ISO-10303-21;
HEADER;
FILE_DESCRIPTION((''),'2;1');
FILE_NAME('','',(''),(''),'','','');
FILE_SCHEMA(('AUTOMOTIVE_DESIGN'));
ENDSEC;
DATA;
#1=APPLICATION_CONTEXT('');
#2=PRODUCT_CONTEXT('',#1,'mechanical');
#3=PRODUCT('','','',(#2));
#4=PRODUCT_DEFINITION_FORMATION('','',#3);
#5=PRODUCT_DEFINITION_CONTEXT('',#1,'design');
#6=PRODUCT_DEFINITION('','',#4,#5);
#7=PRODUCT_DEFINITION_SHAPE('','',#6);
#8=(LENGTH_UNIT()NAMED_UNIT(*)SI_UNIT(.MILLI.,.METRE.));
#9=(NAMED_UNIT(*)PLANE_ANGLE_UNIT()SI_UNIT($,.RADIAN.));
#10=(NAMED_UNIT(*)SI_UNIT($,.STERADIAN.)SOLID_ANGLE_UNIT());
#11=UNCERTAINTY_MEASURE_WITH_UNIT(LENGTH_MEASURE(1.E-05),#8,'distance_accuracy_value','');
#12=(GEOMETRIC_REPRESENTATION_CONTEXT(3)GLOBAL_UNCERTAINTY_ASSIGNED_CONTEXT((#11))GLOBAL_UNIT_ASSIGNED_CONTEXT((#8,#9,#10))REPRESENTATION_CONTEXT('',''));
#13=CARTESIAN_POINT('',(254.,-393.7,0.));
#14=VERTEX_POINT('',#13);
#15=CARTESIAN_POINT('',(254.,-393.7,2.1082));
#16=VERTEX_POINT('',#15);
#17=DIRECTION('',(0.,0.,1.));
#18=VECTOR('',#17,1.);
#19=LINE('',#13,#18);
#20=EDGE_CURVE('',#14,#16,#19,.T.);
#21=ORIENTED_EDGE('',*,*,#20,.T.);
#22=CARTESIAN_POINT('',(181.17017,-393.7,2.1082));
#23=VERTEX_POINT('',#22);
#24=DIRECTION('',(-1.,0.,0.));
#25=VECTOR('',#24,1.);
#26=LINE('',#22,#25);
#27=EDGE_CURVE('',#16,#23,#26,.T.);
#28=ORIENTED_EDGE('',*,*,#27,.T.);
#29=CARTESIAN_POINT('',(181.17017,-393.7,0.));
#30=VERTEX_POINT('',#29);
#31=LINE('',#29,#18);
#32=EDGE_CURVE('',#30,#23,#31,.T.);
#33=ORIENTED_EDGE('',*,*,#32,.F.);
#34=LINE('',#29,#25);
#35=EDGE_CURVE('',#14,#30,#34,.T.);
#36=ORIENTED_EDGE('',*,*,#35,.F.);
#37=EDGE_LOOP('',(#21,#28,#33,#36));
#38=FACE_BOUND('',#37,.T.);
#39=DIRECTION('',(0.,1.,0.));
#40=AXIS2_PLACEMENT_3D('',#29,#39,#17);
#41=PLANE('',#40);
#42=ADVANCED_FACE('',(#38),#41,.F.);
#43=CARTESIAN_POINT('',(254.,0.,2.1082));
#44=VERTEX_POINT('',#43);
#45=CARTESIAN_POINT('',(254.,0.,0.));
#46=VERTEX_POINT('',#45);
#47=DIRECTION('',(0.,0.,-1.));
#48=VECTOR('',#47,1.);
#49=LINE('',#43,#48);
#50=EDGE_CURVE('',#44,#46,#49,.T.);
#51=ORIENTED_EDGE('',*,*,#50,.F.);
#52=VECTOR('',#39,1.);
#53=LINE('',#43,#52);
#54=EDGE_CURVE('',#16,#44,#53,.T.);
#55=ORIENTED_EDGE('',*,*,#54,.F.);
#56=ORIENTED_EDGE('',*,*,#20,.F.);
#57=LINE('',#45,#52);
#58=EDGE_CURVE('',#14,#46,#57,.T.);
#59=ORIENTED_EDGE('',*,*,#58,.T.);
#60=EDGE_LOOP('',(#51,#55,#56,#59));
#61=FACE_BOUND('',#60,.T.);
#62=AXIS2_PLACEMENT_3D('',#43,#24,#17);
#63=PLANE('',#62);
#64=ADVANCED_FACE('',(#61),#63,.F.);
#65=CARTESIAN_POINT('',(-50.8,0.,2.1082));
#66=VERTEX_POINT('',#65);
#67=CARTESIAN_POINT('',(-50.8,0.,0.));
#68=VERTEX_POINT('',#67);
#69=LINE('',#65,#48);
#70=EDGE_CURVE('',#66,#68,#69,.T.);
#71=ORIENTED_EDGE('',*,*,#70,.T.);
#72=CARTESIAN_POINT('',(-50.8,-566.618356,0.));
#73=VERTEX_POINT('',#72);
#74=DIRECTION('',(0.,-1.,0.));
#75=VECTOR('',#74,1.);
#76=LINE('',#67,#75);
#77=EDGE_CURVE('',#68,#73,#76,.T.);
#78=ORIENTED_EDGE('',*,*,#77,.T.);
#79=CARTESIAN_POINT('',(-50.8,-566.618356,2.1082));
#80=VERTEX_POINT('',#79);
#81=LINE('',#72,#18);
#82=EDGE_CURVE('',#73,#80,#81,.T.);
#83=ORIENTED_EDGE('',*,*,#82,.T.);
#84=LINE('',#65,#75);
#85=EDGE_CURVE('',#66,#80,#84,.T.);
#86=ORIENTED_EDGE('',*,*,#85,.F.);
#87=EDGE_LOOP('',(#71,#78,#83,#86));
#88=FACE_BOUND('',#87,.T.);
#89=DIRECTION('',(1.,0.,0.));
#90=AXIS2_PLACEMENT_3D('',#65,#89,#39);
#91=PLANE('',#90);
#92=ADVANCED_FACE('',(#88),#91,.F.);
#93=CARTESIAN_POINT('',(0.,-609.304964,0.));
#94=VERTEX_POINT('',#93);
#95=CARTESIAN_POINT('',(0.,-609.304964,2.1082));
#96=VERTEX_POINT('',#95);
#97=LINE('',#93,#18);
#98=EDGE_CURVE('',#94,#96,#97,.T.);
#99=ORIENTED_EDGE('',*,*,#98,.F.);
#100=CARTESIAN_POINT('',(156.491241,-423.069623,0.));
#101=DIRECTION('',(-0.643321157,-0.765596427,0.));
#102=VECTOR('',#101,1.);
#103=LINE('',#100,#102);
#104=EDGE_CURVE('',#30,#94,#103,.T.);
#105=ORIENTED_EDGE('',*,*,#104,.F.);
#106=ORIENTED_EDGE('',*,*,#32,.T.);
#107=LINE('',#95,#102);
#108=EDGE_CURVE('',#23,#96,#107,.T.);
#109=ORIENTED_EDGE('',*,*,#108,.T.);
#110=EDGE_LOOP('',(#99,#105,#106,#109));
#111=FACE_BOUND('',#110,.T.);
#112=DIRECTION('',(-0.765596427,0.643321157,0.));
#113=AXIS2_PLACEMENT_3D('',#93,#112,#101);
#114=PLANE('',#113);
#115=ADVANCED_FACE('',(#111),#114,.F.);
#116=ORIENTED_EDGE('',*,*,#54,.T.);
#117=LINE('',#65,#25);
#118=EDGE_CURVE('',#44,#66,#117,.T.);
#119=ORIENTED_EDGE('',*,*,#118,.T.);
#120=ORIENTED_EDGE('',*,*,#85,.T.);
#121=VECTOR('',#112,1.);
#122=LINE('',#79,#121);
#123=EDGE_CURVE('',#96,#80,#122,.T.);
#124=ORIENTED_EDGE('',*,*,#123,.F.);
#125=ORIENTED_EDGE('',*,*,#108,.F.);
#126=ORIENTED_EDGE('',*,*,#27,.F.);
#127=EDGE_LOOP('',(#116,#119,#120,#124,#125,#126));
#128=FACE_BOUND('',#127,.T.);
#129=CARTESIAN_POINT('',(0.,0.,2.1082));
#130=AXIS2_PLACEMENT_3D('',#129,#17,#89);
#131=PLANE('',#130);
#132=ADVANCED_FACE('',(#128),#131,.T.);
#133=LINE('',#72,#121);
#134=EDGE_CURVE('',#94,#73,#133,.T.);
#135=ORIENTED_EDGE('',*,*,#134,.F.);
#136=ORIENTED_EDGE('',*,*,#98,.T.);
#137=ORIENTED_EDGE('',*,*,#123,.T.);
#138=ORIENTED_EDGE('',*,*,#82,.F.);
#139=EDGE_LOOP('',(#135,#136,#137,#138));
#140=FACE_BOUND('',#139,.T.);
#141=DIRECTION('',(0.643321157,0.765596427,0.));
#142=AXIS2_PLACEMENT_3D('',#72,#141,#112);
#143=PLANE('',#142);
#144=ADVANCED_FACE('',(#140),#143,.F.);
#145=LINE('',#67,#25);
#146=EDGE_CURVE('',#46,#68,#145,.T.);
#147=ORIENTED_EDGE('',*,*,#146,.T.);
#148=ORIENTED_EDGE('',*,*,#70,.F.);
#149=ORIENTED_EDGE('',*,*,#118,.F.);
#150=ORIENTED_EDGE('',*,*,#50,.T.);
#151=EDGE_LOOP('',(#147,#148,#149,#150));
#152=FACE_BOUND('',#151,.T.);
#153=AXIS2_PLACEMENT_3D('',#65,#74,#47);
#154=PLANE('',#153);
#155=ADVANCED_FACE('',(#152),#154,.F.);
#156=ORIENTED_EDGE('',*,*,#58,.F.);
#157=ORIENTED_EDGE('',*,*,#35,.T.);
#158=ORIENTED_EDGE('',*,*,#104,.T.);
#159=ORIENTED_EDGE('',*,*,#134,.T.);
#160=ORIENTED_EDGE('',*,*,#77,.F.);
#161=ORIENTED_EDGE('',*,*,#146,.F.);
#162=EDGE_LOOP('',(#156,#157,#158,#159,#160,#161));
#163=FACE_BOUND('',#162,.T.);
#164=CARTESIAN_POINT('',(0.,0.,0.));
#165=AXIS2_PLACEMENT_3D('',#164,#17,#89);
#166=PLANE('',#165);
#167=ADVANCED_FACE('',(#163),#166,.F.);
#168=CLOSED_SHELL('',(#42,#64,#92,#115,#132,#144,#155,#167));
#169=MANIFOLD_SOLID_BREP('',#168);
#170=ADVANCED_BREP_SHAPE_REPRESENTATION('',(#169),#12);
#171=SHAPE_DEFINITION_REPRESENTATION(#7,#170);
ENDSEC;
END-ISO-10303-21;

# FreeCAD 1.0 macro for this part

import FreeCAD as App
import Part
import Sketcher

V = App.Vector
Q = App.Units.Quantity


def add_polygon(sketch, points):
    """Adds a closed chain of lines whose ends are joined by coincident constraints."""
    first, n = sketch.GeometryCount, len(points)
    for a, b in zip(points, points[1:] + points[:1]):
        sketch.addGeometry(Part.LineSegment(App.Vector(*a, 0), App.Vector(*b, 0)), False)
    for i in range(n):
        sketch.addConstraint(Sketcher.Constraint("Coincident", first + i, 2, first + (i + 1) % n, 1))

doc = App.newDocument("Part")
body = doc.addObject("PartDesign::Body", "Body")

# Sketch on XY plane
sketch1 = body.newObject("Sketcher::SketchObject", "Sketch")
sketch1.AttachmentSupport = (doc.getObject("XY_Plane"), [""])
sketch1.MapMode = "FlatFace"
add_polygon(sketch1, [(-50.8, 0), (-50.8, -609.6), (254, -609.6), (254, 0)])  # lines 0-3
sketch1.addConstraint([
    Sketcher.Constraint("Vertical", 0),
    Sketcher.Constraint("Horizontal", 1),
    Sketcher.Constraint("Vertical", 2),
    Sketcher.Constraint("Horizontal", 3),
    Sketcher.Constraint("PointOnObject", 2, 2, -1),
    Sketcher.Constraint("DistanceX", 1, 1, 1, 2, Q("12 in")),
    Sketcher.Constraint("DistanceY", 0, 2, 0, 1, Q("24 in")),
    Sketcher.Constraint("DistanceX", 0, 2, -1, 1, Q("2 in")),
])
pad1 = body.newObject("PartDesign::Pad", "Pad")
pad1.Profile = sketch1
pad1.Length = Q("0.083 in")

# Sketch on XY plane
sketch2 = body.newObject("Sketcher::SketchObject", "Sketch001")
sketch2.AttachmentSupport = (doc.getObject("XY_Plane"), [""])
sketch2.MapMode = "FlatFace"
sketch2.AttachmentOffset = App.Placement(V(0, 0, 0.083 * 25.4), App.Rotation())
add_polygon(sketch2, [(-50.8, -566.618356), (-50.8, -609.6), (254, -609.6), (254, -393.7), (181.17017, -393.7), (156.491241, -423.069623), (0, -609.304964)])  # lines 0-6
sketch2.addConstraint([
    Sketcher.Constraint("Vertical", 0),
    Sketcher.Constraint("Horizontal", 1),
    Sketcher.Constraint("Vertical", 2),
    Sketcher.Constraint("Horizontal", 3),
    Sketcher.Constraint("PointOnObject", 5, 2, -2),
    Sketcher.Constraint("Parallel", 4, 5),
    Sketcher.Constraint("Perpendicular", 5, 6),
    Sketcher.Constraint("DistanceX", 1, 1, 1, 2, Q("12 in")),
    Sketcher.Constraint("DistanceY", 2, 1, 2, 2, Q("8.5 in")),
    Sketcher.Constraint("DistanceX", 0, 2, -1, 1, Q("2 in")),
    Sketcher.Constraint("DistanceY", 0, 2, -1, 1, Q("24 in")),
    Sketcher.Constraint("DistanceY", 5, 2, 4, 2, Q("7.3321 in")),
    Sketcher.Constraint("DistanceX", 3, 2, 3, 1, Q("72.82983 mm")),
    Sketcher.Constraint("DistanceY", 0, 2, 0, 1, Q("42.981644 mm")),
])
pocket1 = body.newObject("PartDesign::Pocket", "Pocket")
pocket1.Profile = sketch2
pocket1.Length = Q("0.083 in")

doc.recompute()
